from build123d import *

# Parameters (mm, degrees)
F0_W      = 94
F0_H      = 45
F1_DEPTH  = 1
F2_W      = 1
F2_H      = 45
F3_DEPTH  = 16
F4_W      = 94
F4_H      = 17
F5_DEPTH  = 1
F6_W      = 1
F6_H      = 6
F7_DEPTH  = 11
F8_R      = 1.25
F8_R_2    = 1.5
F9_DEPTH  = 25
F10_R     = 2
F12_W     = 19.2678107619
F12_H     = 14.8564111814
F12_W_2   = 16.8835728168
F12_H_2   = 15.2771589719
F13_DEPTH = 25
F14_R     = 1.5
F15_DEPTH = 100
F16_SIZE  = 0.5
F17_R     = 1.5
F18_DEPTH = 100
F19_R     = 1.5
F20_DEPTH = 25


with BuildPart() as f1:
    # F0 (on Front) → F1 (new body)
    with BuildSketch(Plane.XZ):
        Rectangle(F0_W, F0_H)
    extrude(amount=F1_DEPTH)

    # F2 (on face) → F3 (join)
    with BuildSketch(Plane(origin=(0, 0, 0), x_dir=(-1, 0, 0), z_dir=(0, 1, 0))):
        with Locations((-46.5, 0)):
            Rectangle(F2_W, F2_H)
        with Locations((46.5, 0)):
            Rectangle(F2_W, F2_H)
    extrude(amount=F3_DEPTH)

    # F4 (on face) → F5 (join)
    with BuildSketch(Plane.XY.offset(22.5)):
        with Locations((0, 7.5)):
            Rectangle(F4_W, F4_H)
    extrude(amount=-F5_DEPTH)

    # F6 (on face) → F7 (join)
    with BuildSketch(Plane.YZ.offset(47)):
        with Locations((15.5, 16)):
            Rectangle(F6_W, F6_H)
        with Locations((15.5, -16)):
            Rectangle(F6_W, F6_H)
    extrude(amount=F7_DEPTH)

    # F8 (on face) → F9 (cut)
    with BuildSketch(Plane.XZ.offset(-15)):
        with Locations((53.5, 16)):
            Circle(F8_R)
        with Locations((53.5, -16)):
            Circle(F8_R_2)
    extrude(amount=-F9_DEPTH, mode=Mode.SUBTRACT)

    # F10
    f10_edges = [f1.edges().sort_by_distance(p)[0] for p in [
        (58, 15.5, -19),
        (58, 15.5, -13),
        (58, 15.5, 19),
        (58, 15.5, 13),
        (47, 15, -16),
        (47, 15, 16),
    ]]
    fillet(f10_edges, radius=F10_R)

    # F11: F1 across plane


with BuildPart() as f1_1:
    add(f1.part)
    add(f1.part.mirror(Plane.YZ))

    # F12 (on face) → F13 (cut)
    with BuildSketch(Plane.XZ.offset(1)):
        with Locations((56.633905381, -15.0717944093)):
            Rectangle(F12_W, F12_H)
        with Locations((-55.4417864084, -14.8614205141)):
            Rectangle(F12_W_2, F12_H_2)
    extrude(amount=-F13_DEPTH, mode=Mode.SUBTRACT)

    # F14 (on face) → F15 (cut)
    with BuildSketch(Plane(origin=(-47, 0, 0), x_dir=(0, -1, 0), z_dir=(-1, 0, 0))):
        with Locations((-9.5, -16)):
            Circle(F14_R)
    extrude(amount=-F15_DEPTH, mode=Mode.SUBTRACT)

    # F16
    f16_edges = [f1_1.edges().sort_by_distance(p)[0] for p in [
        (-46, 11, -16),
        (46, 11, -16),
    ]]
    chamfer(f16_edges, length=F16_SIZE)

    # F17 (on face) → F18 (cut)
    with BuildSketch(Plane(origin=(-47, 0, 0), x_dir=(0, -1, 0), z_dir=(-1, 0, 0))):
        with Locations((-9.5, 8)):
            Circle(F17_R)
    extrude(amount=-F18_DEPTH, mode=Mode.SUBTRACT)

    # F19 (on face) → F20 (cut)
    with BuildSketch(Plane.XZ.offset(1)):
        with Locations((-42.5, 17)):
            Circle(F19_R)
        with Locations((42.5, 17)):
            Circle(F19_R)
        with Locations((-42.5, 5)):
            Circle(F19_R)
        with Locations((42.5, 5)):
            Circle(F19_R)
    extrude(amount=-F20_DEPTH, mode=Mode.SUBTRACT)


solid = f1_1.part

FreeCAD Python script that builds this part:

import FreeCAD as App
import Part
import Sketcher

V = App.Vector
Q = App.Units.Quantity


def edges_at(feature, points):
    """Names of the edges that pass closest to the given points."""
    edges = feature.Shape.Edges
    near = lambda p: min(range(len(edges)), key=lambda i: edges[i].distToShape(Part.Vertex(*p))[0])
    return sorted({f"Edge{near(p) + 1}" for p in points})


def add_polygon(sketch, points):
    """Adds a closed chain of lines whose ends are joined by coincident constraints."""
    first, n = sketch.GeometryCount, len(points)
    for a, b in zip(points, points[1:] + points[:1]):
        sketch.addGeometry(Part.LineSegment(App.Vector(*a, 0), App.Vector(*b, 0)), False)
    for i in range(n):
        sketch.addConstraint(Sketcher.Constraint("Coincident", first + i, 2, first + (i + 1) % n, 1))

doc = App.newDocument("Part")
params = doc.addObject("Spreadsheet::Sheet", "Params")
for row, (alias, value) in enumerate([
    ("sketch1_width", "94 mm"),
    ("sketch1_height", "45 mm"),
    ("pad1_length", "1 mm"),
    ("sketch2_width", "1 mm"),
    ("sketch2_height", "45 mm"),
    ("pad2_length", "16 mm"),
    ("sketch3_width", "94 mm"),
    ("sketch3_height", "17 mm"),
    ("pad3_length", "1 mm"),
    ("sketch4_width", "1 mm"),
    ("sketch4_height", "6 mm"),
    ("pad4_length", "11 mm"),
    ("sketch5_diameter", "3 mm"),
    ("sketch5_diameter2", "2.5 mm"),
    ("pocket1_length", "25 mm"),
    ("fillet_radius", "2 mm"),
    ("pocket2_length", "25 mm"),
    ("sketch7_diameter", "3 mm"),
    ("pocket3_length", "100 mm"),
    ("chamfer_size", "0.5 mm"),
    ("sketch8_diameter", "3 mm"),
    ("pocket4_length", "100 mm"),
    ("sketch9_diameter", "3 mm"),
    ("pocket5_length", "25 mm"),
], start=1):
    params.set(f"A{row}", alias)
    params.set(f"B{row}", "=" + value)
    params.setAlias(f"B{row}", alias)

body = doc.addObject("PartDesign::Body", "Body")

# Sketch on XZ plane
sketch1 = body.newObject("Sketcher::SketchObject", "Sketch")
sketch1.AttachmentSupport = (doc.getObject("XZ_Plane"), [""])
sketch1.MapMode = "FlatFace"
add_polygon(sketch1, [(-47, 22), (-47, -22), (47, -22), (47, 22)])  # lines 0-3
sketch1.addConstraint(Sketcher.Constraint("Vertical", 0))
sketch1.addConstraint(Sketcher.Constraint("Horizontal", 1))
sketch1.addConstraint(Sketcher.Constraint("Vertical", 2))
sketch1.addConstraint(Sketcher.Constraint("Horizontal", 3))
sketch1.addConstraint(Sketcher.Constraint("Symmetric", 0, 2, 2, 2, -1, 1))
sketch1.addConstraint(Sketcher.Constraint("DistanceX", 1, 1, 1, 2, Q("94 mm")))
sketch1.addConstraint(Sketcher.Constraint("DistanceY", 0, 2, 0, 1, Q("45 mm")))
sketch1.setExpression("Constraints[9]", "Params.sketch1_width")
sketch1.setExpression("Constraints[10]", "Params.sketch1_height")
pad1 = body.newObject("PartDesign::Pad", "Pad")
pad1.Profile = sketch1
pad1.setExpression("Length", "Params.pad1_length")

# Sketch on XZ plane
sketch2 = body.newObject("Sketcher::SketchObject", "Sketch001")
sketch2.AttachmentSupport = (doc.getObject("XZ_Plane"), [""])
sketch2.MapMode = "FlatFace"
add_polygon(sketch2, [(47, 22.5), (47, -22.5), (46, -22.5), (46, 22.5)])  # lines 0-3
add_polygon(sketch2, [(-46, 22.5), (-46, -22.5), (-47, -22.5), (-47, 22.5)])  # lines 4-7
sketch2.addConstraint(Sketcher.Constraint("Vertical", 0))
sketch2.addConstraint(Sketcher.Constraint("Horizontal", 1))
sketch2.addConstraint(Sketcher.Constraint("Vertical", 2))
sketch2.addConstraint(Sketcher.Constraint("Horizontal", 3))
sketch2.addConstraint(Sketcher.Constraint("Vertical", 4))
sketch2.addConstraint(Sketcher.Constraint("Horizontal", 5))
sketch2.addConstraint(Sketcher.Constraint("Vertical", 6))
sketch2.addConstraint(Sketcher.Constraint("Horizontal", 7))
sketch2.addConstraint(Sketcher.Constraint("Symmetric", 2, 2, 4, 2, -1, 1))
sketch2.addConstraint(Sketcher.Constraint("Symmetric", 0, 2, 6, 2, -1, 1))
sketch2.addConstraint(Sketcher.Constraint("Horizontal", 1, 2, 4, 2))
sketch2.addConstraint(Sketcher.Constraint("DistanceX", 1, 2, 1, 1, Q("1 mm")))
sketch2.addConstraint(Sketcher.Constraint("DistanceY", 0, 2, 0, 1, Q("45 mm")))
sketch2.addConstraint(Sketcher.Constraint("DistanceX", -1, 1, 0, 2, Q("47 mm")))
sketch2.setExpression("Constraints[19]", "Params.sketch2_width")
sketch2.setExpression("Constraints[20]", "Params.sketch2_height")
pad2 = body.newObject("PartDesign::Pad", "Pad001")
pad2.Profile = sketch2
pad2.setExpression("Length", "Params.pad2_length")
pad2.Reversed = True

# Sketch on XY plane
sketch3 = body.newObject("Sketcher::SketchObject", "Sketch002")
sketch3.AttachmentSupport = (doc.getObject("XY_Plane"), [""])
sketch3.MapMode = "FlatFace"
sketch3.AttachmentOffset = App.Placement(V(0, 0, 22.5), App.Rotation())
add_polygon(sketch3, [(-47, 16), (-47, -1), (47, -1), (47, 16)])  # lines 0-3
sketch3.addConstraint(Sketcher.Constraint("Vertical", 0))
sketch3.addConstraint(Sketcher.Constraint("Horizontal", 1))
sketch3.addConstraint(Sketcher.Constraint("Vertical", 2))
sketch3.addConstraint(Sketcher.Constraint("Horizontal", 3))
sketch3.addConstraint(Sketcher.Constraint("DistanceX", 1, 1, 1, 2, Q("94 mm")))
sketch3.addConstraint(Sketcher.Constraint("DistanceY", 0, 2, 0, 1, Q("17 mm")))
sketch3.addConstraint(Sketcher.Constraint("DistanceX", 0, 2, -1, 1, Q("47 mm")))
sketch3.addConstraint(Sketcher.Constraint("DistanceY", 0, 2, -1, 1, Q("1 mm")))
sketch3.setExpression("Constraints[8]", "Params.sketch3_width")
sketch3.setExpression("Constraints[9]", "Params.sketch3_height")
pad3 = body.newObject("PartDesign::Pad", "Pad002")
pad3.Profile = sketch3
pad3.setExpression("Length", "Params.pad3_length")
pad3.Reversed = True

# Sketch on YZ plane
sketch4 = body.newObject("Sketcher::SketchObject", "Sketch003")
sketch4.AttachmentSupport = (doc.getObject("YZ_Plane"), [""])
sketch4.MapMode = "FlatFace"
sketch4.AttachmentOffset = App.Placement(V(0, 0, 47), App.Rotation())
add_polygon(sketch4, [(15, 19), (15, 13), (16, 13), (16, 19)])  # lines 0-3
add_polygon(sketch4, [(15, -13), (15, -19), (16, -19), (16, -13)])  # lines 4-7
sketch4.addConstraint(Sketcher.Constraint("Vertical", 0))
sketch4.addConstraint(Sketcher.Constraint("Horizontal", 1))
sketch4.addConstraint(Sketcher.Constraint("Vertical", 2))
sketch4.addConstraint(Sketcher.Constraint("Horizontal", 3))
sketch4.addConstraint(Sketcher.Constraint("Vertical", 4))
sketch4.addConstraint(Sketcher.Constraint("Horizontal", 5))
sketch4.addConstraint(Sketcher.Constraint("Vertical", 6))
sketch4.addConstraint(Sketcher.Constraint("Horizontal", 7))
sketch4.addConstraint(Sketcher.Constraint("Symmetric", 3, 2, 4, 2, -1))
sketch4.addConstraint(Sketcher.Constraint("Symmetric", 1, 2, 6, 2, -1))
sketch4.addConstraint(Sketcher.Constraint("DistanceX", 1, 1, 1, 2, Q("1 mm")))
sketch4.addConstraint(Sketcher.Constraint("DistanceY", 0, 2, 0, 1, Q("6 mm")))
sketch4.addConstraint(Sketcher.Constraint("DistanceX", -1, 1, 0, 2, Q("15 mm")))
sketch4.addConstraint(Sketcher.Constraint("DistanceY", -1, 1, 0, 2, Q("13 mm")))
sketch4.setExpression("Constraints[18]", "Params.sketch4_width")
sketch4.setExpression("Constraints[19]", "Params.sketch4_height")
pad4 = body.newObject("PartDesign::Pad", "Pad003")
pad4.Profile = sketch4
pad4.setExpression("Length", "Params.pad4_length")

# Sketch on XZ plane
sketch5 = body.newObject("Sketcher::SketchObject", "Sketch004")
sketch5.AttachmentSupport = (doc.getObject("XZ_Plane"), [""])
sketch5.MapMode = "FlatFace"
sketch5.AttachmentOffset = App.Placement(V(0, 0, -15), App.Rotation())
sketch5.addGeometry(Part.Circle(V(53.5, 16, 0), V(0, 0, 1), 1.2), False)
sketch5.addGeometry(Part.Circle(V(53.5, -16, 0), V(0, 0, 1), 1.5), False)
sketch5.addConstraint(Sketcher.Constraint("Symmetric", 0, 3, 1, 3, -1))
sketch5.addConstraint(Sketcher.Constraint("Diameter", 1, Q("3 mm")))
sketch5.addConstraint(Sketcher.Constraint("Diameter", 0, Q("2.5 mm")))
sketch5.addConstraint(Sketcher.Constraint("DistanceY", -1, 1, 0, 3, Q("16 mm")))
sketch5.addConstraint(Sketcher.Constraint("DistanceX", -1, 1, 0, 3, Q("53.5 mm")))
sketch5.setExpression("Constraints[1]", "Params.sketch5_diameter")
sketch5.setExpression("Constraints[2]", "Params.sketch5_diameter2")
pocket1 = body.newObject("PartDesign::Pocket", "Pocket")
pocket1.Profile = sketch5
pocket1.setExpression("Length", "Params.pocket1_length")
doc.recompute()

fillet = body.newObject("PartDesign::Fillet", "Fillet")
fillet.Base = (pocket1, edges_at(pocket1, [
    (58, 15.5, -19),
    (58, 15.5, -13),
    (58, 15.5, 19),
    (58, 15.5, 13),
    (47, 15, -16),
    (47, 15, 16),
]))
fillet.setExpression("Radius", "Params.fillet_radius")
body2 = doc.addObject("PartDesign::Body", "Body001")
doc.recompute()

body2.BaseFeature = body
doc.recompute()

mirroring = doc.addObject("Part::Mirroring", "Mirroring")
mirroring.Source = body
mirroring.Base = V(0, 0, 0)
mirroring.Normal = V(1, 0, 0)
body3 = doc.addObject("PartDesign::Body", "Body002")
body3.BaseFeature = mirroring
boolean = body2.newObject("PartDesign::Boolean", "Boolean")
boolean.Type = "Fuse"
boolean.addObjects([body3])
doc.recompute()

# Sketch on XZ plane
sketch6 = body2.newObject("Sketcher::SketchObject", "Sketch005")
sketch6.AttachmentSupport = (doc.getObject("XZ_Plane001"), [""])
sketch6.MapMode = "FlatFace"
sketch6.AttachmentOffset = App.Placement(V(0, 0, 1), App.Rotation())
add_polygon(sketch6, [(47, -8), (47, -22), (66, -22), (66, -8)])  # lines 0-3
add_polygon(sketch6, [(-64, -7), (-64, -22), (-47, -22), (-47, -7)])  # lines 4-7
sketch6.addConstraint(Sketcher.Constraint("Vertical", 0))
sketch6.addConstraint(Sketcher.Constraint("Horizontal", 1))
sketch6.addConstraint(Sketcher.Constraint("Vertical", 2))
sketch6.addConstraint(Sketcher.Constraint("Horizontal", 3))
sketch6.addConstraint(Sketcher.Constraint("Vertical", 4))
sketch6.addConstraint(Sketcher.Constraint("Horizontal", 5))
sketch6.addConstraint(Sketcher.Constraint("Vertical", 6))
sketch6.addConstraint(Sketcher.Constraint("Horizontal", 7))
sketch6.addConstraint(Sketcher.Constraint("Symmetric", 0, 2, 5, 2, -2))
sketch6.addConstraint(Sketcher.Constraint("DistanceX", -1, 1, 0, 2, Q("47 mm")))
sketch6.addConstraint(Sketcher.Constraint("DistanceY", 0, 2, -1, 1, Q("22.5 mm")))
sketch6.addConstraint(Sketcher.Constraint("DistanceX", 1, 1, 1, 2, Q("19.267811 mm")))
sketch6.addConstraint(Sketcher.Constraint("DistanceY", 0, 2, 0, 1, Q("14.856411 mm")))
sketch6.addConstraint(Sketcher.Constraint("DistanceY", 4, 2, 4, 1, Q("15.277159 mm")))
sketch6.addConstraint(Sketcher.Constraint("DistanceX", 5, 1, 5, 2, Q("16.883573 mm")))
pocket2 = body2.newObject("PartDesign::Pocket", "Pocket001")
pocket2.Profile = sketch6
pocket2.setExpression("Length", "Params.pocket2_length")

# Sketch on YZ plane
sketch7 = body2.newObject("Sketcher::SketchObject", "Sketch006")
sketch7.AttachmentSupport = (doc.getObject("YZ_Plane001"), [""])
sketch7.MapMode = "FlatFace"
sketch7.AttachmentOffset = App.Placement(V(0, 0, -47), App.Rotation())
sketch7.addGeometry(Part.Circle(V(9.5, -16, 0), V(0, 0, 1), 1.5), False)
sketch7.addConstraint(Sketcher.Constraint("Diameter", 0, Q("3 mm")))
sketch7.addConstraint(Sketcher.Constraint("DistanceY", 0, 3, -1, 1, Q("16 mm")))
sketch7.addConstraint(Sketcher.Constraint("DistanceX", -1, 1, 0, 3, Q("9.5 mm")))
sketch7.setExpression("Constraints[0]", "Params.sketch7_diameter")
pocket3 = body2.newObject("PartDesign::Pocket", "Pocket002")
pocket3.Profile = sketch7
pocket3.setExpression("Length", "Params.pocket3_length")
pocket3.Reversed = True
doc.recompute()

chamfer = body2.newObject("PartDesign::Chamfer", "Chamfer")
chamfer.Base = (pocket3, edges_at(pocket3, [(-46, 11, -16), (46, 11, -16)]))
chamfer.setExpression("Size", "Params.chamfer_size")

# Sketch on YZ plane
sketch8 = body2.newObject("Sketcher::SketchObject", "Sketch007")
sketch8.AttachmentSupport = (doc.getObject("YZ_Plane001"), [""])
sketch8.MapMode = "FlatFace"
sketch8.AttachmentOffset = App.Placement(V(0, 0, -47), App.Rotation())
sketch8.addGeometry(Part.Circle(V(9.5, 8, 0), V(0, 0, 1), 1.5), False)
sketch8.addConstraint(Sketcher.Constraint("Diameter", 0, Q("3 mm")))
sketch8.addConstraint(Sketcher.Constraint("DistanceY", -1, 1, 0, 3, Q("8 mm")))
sketch8.addConstraint(Sketcher.Constraint("DistanceX", -1, 1, 0, 3, Q("9.5 mm")))
sketch8.setExpression("Constraints[0]", "Params.sketch8_diameter")
pocket4 = body2.newObject("PartDesign::Pocket", "Pocket003")
pocket4.Profile = sketch8
pocket4.setExpression("Length", "Params.pocket4_length")
pocket4.Reversed = True

# Sketch on XZ plane
sketch9 = body2.newObject("Sketcher::SketchObject", "Sketch008")
sketch9.AttachmentSupport = (doc.getObject("XZ_Plane001"), [""])
sketch9.MapMode = "FlatFace"
sketch9.AttachmentOffset = App.Placement(V(0, 0, 1), App.Rotation())
sketch9.addGeometry(Part.Circle(V(-42.5, 17, 0), V(0, 0, 1), 1.5), False)
sketch9.addGeometry(Part.Circle(V(42.5, 17, 0), V(0, 0, 1), 1.5), False)
sketch9.addGeometry(Part.Circle(V(-42.5, 5, 0), V(0, 0, 1), 1.5), False)
sketch9.addGeometry(Part.Circle(V(42.5, 5, 0), V(0, 0, 1), 1.5), False)
sketch9.addConstraint(Sketcher.Constraint("Equal", 0, 1))
sketch9.addConstraint(Sketcher.Constraint("Equal", 1, 2))
sketch9.addConstraint(Sketcher.Constraint("Equal", 2, 3))
sketch9.addConstraint(Sketcher.Constraint("Symmetric", 0, 3, 1, 3, -2))
sketch9.addConstraint(Sketcher.Constraint("Symmetric", 2, 3, 3, 3, -2))
sketch9.addConstraint(Sketcher.Constraint("Vertical", 0, 3, 2, 3))
sketch9.addConstraint(Sketcher.Constraint("Diameter", 0, Q("3 mm")))
sketch9.addConstraint(Sketcher.Constraint("DistanceY", -1, 1, 0, 3, Q("17 mm")))
sketch9.addConstraint(Sketcher.Constraint("DistanceY", -1, 1, 2, 3, Q("5 mm")))
sketch9.addConstraint(Sketcher.Constraint("DistanceX", 0, 3, 1, 3, Q("85 mm")))
sketch9.setExpression("Constraints[6]", "Params.sketch9_diameter")
pocket5 = body2.newObject("PartDesign::Pocket", "Pocket004")
pocket5.Profile = sketch9
pocket5.setExpression("Length", "Params.pocket5_length")
mirroring.Visibility = False

doc.recompute()
